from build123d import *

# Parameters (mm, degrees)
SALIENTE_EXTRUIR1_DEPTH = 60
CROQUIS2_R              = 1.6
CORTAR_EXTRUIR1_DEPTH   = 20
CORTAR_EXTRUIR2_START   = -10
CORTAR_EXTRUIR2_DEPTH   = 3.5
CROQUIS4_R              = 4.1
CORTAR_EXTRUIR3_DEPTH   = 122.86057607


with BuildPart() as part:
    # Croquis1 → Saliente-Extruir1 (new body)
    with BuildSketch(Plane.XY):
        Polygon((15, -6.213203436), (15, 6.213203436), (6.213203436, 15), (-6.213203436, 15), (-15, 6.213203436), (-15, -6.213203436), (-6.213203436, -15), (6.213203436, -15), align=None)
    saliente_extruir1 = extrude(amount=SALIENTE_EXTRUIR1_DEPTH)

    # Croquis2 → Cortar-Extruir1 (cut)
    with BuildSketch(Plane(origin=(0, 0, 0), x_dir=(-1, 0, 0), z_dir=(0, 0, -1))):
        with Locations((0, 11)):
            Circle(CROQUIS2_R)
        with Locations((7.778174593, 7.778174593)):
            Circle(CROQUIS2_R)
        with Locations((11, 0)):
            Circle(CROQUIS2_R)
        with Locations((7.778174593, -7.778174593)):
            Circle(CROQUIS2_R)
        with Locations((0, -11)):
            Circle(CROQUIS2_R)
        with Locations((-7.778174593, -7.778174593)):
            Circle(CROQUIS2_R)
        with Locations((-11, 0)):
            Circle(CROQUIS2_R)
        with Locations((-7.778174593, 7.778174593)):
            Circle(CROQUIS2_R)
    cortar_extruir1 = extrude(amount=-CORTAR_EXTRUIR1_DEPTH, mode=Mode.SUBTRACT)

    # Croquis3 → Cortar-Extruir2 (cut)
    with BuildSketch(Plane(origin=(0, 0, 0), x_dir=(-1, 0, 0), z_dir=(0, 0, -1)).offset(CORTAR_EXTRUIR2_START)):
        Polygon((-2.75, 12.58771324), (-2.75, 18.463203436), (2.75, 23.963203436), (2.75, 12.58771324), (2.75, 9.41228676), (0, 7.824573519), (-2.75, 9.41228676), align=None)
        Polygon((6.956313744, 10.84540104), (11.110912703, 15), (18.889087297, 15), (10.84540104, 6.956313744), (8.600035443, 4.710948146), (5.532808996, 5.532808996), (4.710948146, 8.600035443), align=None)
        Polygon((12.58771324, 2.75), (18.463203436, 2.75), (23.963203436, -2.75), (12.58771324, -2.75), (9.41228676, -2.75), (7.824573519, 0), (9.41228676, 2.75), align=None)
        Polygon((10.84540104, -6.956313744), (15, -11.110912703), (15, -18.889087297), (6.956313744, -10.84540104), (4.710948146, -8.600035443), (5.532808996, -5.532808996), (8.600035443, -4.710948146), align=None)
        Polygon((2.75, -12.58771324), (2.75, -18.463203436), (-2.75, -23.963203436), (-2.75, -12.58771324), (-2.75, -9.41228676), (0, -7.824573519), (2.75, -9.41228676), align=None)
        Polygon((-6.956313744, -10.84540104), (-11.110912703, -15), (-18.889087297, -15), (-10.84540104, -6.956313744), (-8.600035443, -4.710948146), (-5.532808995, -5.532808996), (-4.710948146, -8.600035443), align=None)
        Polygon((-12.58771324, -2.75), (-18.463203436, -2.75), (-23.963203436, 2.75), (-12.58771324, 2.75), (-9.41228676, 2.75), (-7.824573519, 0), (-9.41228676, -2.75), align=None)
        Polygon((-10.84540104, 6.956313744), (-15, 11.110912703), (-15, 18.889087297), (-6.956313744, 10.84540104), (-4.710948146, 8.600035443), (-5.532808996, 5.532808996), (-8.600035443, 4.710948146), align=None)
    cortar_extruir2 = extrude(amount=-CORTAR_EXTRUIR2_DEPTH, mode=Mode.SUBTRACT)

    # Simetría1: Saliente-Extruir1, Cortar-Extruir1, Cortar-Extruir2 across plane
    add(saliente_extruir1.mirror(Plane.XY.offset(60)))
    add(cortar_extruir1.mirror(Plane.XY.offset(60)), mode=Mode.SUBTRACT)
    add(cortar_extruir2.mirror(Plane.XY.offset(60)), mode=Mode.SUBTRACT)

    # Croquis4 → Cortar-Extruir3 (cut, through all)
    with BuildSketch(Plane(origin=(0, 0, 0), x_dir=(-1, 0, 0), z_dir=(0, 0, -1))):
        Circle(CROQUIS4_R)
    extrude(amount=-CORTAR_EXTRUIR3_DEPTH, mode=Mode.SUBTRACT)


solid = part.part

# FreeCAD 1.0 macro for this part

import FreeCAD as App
import Part
import Sketcher
Q = App.Units.Quantity

doc = App.newDocument("Part")
body = doc.addObject("PartDesign::Body", "Body")

# Sketch on XY plane
sketch1 = doc.addObject("Sketcher::SketchObject", "Sketch")
body.addObject(sketch1)
sketch1.AttachmentSupport = (doc.XY_Plane, [""])
sketch1.MapMode = "FlatFace"
sketch1.addGeometry(Part.LineSegment(App.Vector(15, -6, 0), App.Vector(15, 6, 0)), False)
sketch1.addGeometry(Part.LineSegment(App.Vector(15, 6, 0), App.Vector(6, 15, 0)), False)
sketch1.addGeometry(Part.LineSegment(App.Vector(6, 15, 0), App.Vector(-6, 15, 0)), False)
sketch1.addGeometry(Part.LineSegment(App.Vector(-6, 15, 0), App.Vector(-15, 6, 0)), False)
sketch1.addGeometry(Part.LineSegment(App.Vector(-15, 6, 0), App.Vector(-15, -6, 0)), False)
sketch1.addGeometry(Part.LineSegment(App.Vector(-15, -6, 0), App.Vector(-6, -15, 0)), False)
sketch1.addGeometry(Part.LineSegment(App.Vector(-6, -15, 0), App.Vector(6, -15, 0)), False)
sketch1.addGeometry(Part.LineSegment(App.Vector(6, -15, 0), App.Vector(15, -6, 0)), False)
sketch1.addConstraint(Sketcher.Constraint("Coincident", 0, 2, 1, 1))
sketch1.addConstraint(Sketcher.Constraint("Coincident", 1, 2, 2, 1))
sketch1.addConstraint(Sketcher.Constraint("Coincident", 2, 2, 3, 1))
sketch1.addConstraint(Sketcher.Constraint("Coincident", 3, 2, 4, 1))
sketch1.addConstraint(Sketcher.Constraint("Coincident", 4, 2, 5, 1))
sketch1.addConstraint(Sketcher.Constraint("Coincident", 5, 2, 6, 1))
sketch1.addConstraint(Sketcher.Constraint("Coincident", 6, 2, 7, 1))
sketch1.addConstraint(Sketcher.Constraint("Coincident", 7, 2, 0, 1))
sketch1.addConstraint(Sketcher.Constraint("Vertical", 0))
sketch1.addConstraint(Sketcher.Constraint("Horizontal", 2))
sketch1.addConstraint(Sketcher.Constraint("Vertical", 4))
sketch1.addConstraint(Sketcher.Constraint("Horizontal", 6))
sketch1.addConstraint(Sketcher.Constraint("Symmetric", 0, 2, 4, 2, -1, 1))
sketch1.addConstraint(Sketcher.Constraint("Symmetric", 1, 2, 5, 2, -1, 1))
sketch1.addConstraint(Sketcher.Constraint("Perpendicular", 1, 3))
sketch1.addConstraint(Sketcher.Constraint("Perpendicular", 5, 7))
sketch1.addConstraint(Sketcher.Constraint("Horizontal", 0, 2, 3, 2))
sketch1.addConstraint(Sketcher.Constraint("Horizontal", 4, 2, 7, 2))
sketch1.addConstraint(Sketcher.Constraint("Vertical", 2, 2, 5, 2))
sketch1.addConstraint(Sketcher.Constraint("Equal", 6, 0))
sketch1.addConstraint(Sketcher.Constraint("DistanceX", -1, 1, 0, 2, Q("15 mm")))
sketch1.addConstraint(Sketcher.Constraint("DistanceX", 2, 2, 2, 1, Q("12.426407 mm")))
pad1 = doc.addObject("PartDesign::Pad", "Pad")
body.addObject(pad1)
pad1.Profile = sketch1
pad1.Length = 60

# Sketch on XY plane
sketch2 = doc.addObject("Sketcher::SketchObject", "Sketch001")
body.addObject(sketch2)
sketch2.AttachmentSupport = (doc.XY_Plane, [""])
sketch2.MapMode = "FlatFace"
sketch2.addGeometry(Part.Circle(App.Vector(0, 11, 0), App.Vector(0, 0, 1), 1.6), False)
sketch2.addGeometry(Part.Circle(App.Vector(-7.8, 7.8, 0), App.Vector(0, 0, 1), 1.6), False)
sketch2.addGeometry(Part.Circle(App.Vector(-11, 0, 0), App.Vector(0, 0, 1), 1.6), False)
sketch2.addGeometry(Part.Circle(App.Vector(-7.8, -7.8, 0), App.Vector(0, 0, 1), 1.6), False)
sketch2.addGeometry(Part.Circle(App.Vector(0, -11, 0), App.Vector(0, 0, 1), 1.6), False)
sketch2.addGeometry(Part.Circle(App.Vector(7.8, -7.8, 0), App.Vector(0, 0, 1), 1.6), False)
sketch2.addGeometry(Part.Circle(App.Vector(11, 0, 0), App.Vector(0, 0, 1), 1.6), False)
sketch2.addGeometry(Part.Circle(App.Vector(7.8, 7.8, 0), App.Vector(0, 0, 1), 1.6), False)
sketch2.addConstraint(Sketcher.Constraint("Equal", 0, 1))
sketch2.addConstraint(Sketcher.Constraint("Equal", 1, 2))
sketch2.addConstraint(Sketcher.Constraint("Equal", 2, 3))
sketch2.addConstraint(Sketcher.Constraint("Equal", 3, 4))
sketch2.addConstraint(Sketcher.Constraint("Equal", 4, 5))
sketch2.addConstraint(Sketcher.Constraint("Equal", 5, 6))
sketch2.addConstraint(Sketcher.Constraint("Equal", 6, 7))
sketch2.addConstraint(Sketcher.Constraint("Symmetric", 0, 3, 4, 3, -1, 1))
sketch2.addConstraint(Sketcher.Constraint("Symmetric", 1, 3, 5, 3, -1, 1))
sketch2.addConstraint(Sketcher.Constraint("Symmetric", 2, 3, 6, 3, -1, 1))
sketch2.addConstraint(Sketcher.Constraint("Symmetric", 3, 3, 7, 3, -1, 1))
sketch2.addConstraint(Sketcher.Constraint("Symmetric", 3, 3, 5, 3, -2))
sketch2.addConstraint(Sketcher.Constraint("PointOnObject", 0, 3, -2))
sketch2.addConstraint(Sketcher.Constraint("PointOnObject", 2, 3, -1))
sketch2.addConstraint(Sketcher.Constraint("Diameter", 0, Q("3.2 mm")))
sketch2.addConstraint(Sketcher.Constraint("DistanceY", -1, 1, 0, 3, Q("11 mm")))
sketch2.addConstraint(Sketcher.Constraint("DistanceX", 2, 3, -1, 1, Q("11 mm")))
sketch2.addConstraint(Sketcher.Constraint("DistanceY", 3, 3, 1, 3, Q("15.556349 mm")))
sketch2.addConstraint(Sketcher.Constraint("DistanceX", 3, 3, 5, 3, Q("15.556349 mm")))
pocket1 = doc.addObject("PartDesign::Pocket", "Pocket")
body.addObject(pocket1)
pocket1.Profile = sketch2
pocket1.Length = 20
pocket1.Reversed = True

# Sketch on XY plane
sketch3 = doc.addObject("Sketcher::SketchObject", "Sketch002")
body.addObject(sketch3)
sketch3.AttachmentSupport = (doc.XY_Plane, [""])
sketch3.MapMode = "FlatFace"
sketch3.AttachmentOffset = App.Placement(App.Vector(0, 0, 10), App.Rotation())
sketch3.addGeometry(Part.LineSegment(App.Vector(2.8, 18.5, 0), App.Vector(2.8, 9.4, 0)), False)
sketch3.addGeometry(Part.LineSegment(App.Vector(2.8, 9.4, 0), App.Vector(0, 7.8, 0)), False)
sketch3.addGeometry(Part.LineSegment(App.Vector(0, 7.8, 0), App.Vector(-2.8, 9.4, 0)), False)
sketch3.addGeometry(Part.LineSegment(App.Vector(-2.8, 9.4, 0), App.Vector(-2.8, 24, 0)), False)
sketch3.addGeometry(Part.LineSegment(App.Vector(-2.8, 24, 0), App.Vector(2.8, 18.5, 0)), False)
sketch3.addGeometry(Part.LineSegment(App.Vector(-11.1, 15, 0), App.Vector(-7, 10.8, 0)), False)
sketch3.addGeometry(Part.LineSegment(App.Vector(-7, 10.8, 0), App.Vector(-4.7, 8.6, 0)), False)
sketch3.addGeometry(Part.LineSegment(App.Vector(-4.7, 8.6, 0), App.Vector(-5.5, 5.5, 0)), False)
sketch3.addGeometry(Part.LineSegment(App.Vector(-5.5, 5.5, 0), App.Vector(-8.6, 4.7, 0)), False)
sketch3.addGeometry(Part.LineSegment(App.Vector(-8.6, 4.7, 0), App.Vector(-10.8, 7, 0)), False)
sketch3.addGeometry(Part.LineSegment(App.Vector(-10.8, 7, 0), App.Vector(-18.9, 15, 0)), False)
sketch3.addGeometry(Part.LineSegment(App.Vector(-18.9, 15, 0), App.Vector(-11.1, 15, 0)), False)
sketch3.addGeometry(Part.LineSegment(App.Vector(-18.5, 2.8, 0), App.Vector(-9.4, 2.8, 0)), False)
sketch3.addGeometry(Part.LineSegment(App.Vector(-9.4, 2.8, 0), App.Vector(-7.8, 0, 0)), False)
sketch3.addGeometry(Part.LineSegment(App.Vector(-7.8, 0, 0), App.Vector(-9.4, -2.8, 0)), False)
sketch3.addGeometry(Part.LineSegment(App.Vector(-9.4, -2.8, 0), App.Vector(-24, -2.8, 0)), False)
sketch3.addGeometry(Part.LineSegment(App.Vector(-24, -2.8, 0), App.Vector(-18.5, 2.8, 0)), False)
sketch3.addGeometry(Part.LineSegment(App.Vector(-15, -11.1, 0), App.Vector(-10.8, -7, 0)), False)
sketch3.addGeometry(Part.LineSegment(App.Vector(-10.8, -7, 0), App.Vector(-8.6, -4.7, 0)), False)
sketch3.addGeometry(Part.LineSegment(App.Vector(-8.6, -4.7, 0), App.Vector(-5.5, -5.5, 0)), False)
sketch3.addGeometry(Part.LineSegment(App.Vector(-5.5, -5.5, 0), App.Vector(-4.7, -8.6, 0)), False)
sketch3.addGeometry(Part.LineSegment(App.Vector(-4.7, -8.6, 0), App.Vector(-7, -10.8, 0)), False)
sketch3.addGeometry(Part.LineSegment(App.Vector(-7, -10.8, 0), App.Vector(-15, -18.9, 0)), False)
sketch3.addGeometry(Part.LineSegment(App.Vector(-15, -18.9, 0), App.Vector(-15, -11.1, 0)), False)
sketch3.addGeometry(Part.LineSegment(App.Vector(-2.8, -18.5, 0), App.Vector(-2.8, -9.4, 0)), False)
sketch3.addGeometry(Part.LineSegment(App.Vector(-2.8, -9.4, 0), App.Vector(0, -7.8, 0)), False)
sketch3.addGeometry(Part.LineSegment(App.Vector(0, -7.8, 0), App.Vector(2.8, -9.4, 0)), False)
sketch3.addGeometry(Part.LineSegment(App.Vector(2.8, -9.4, 0), App.Vector(2.8, -24, 0)), False)
sketch3.addGeometry(Part.LineSegment(App.Vector(2.8, -24, 0), App.Vector(-2.8, -18.5, 0)), False)
sketch3.addGeometry(Part.LineSegment(App.Vector(11.1, -15, 0), App.Vector(7, -10.8, 0)), False)
sketch3.addGeometry(Part.LineSegment(App.Vector(7, -10.8, 0), App.Vector(4.7, -8.6, 0)), False)
sketch3.addGeometry(Part.LineSegment(App.Vector(4.7, -8.6, 0), App.Vector(5.5, -5.5, 0)), False)
sketch3.addGeometry(Part.LineSegment(App.Vector(5.5, -5.5, 0), App.Vector(8.6, -4.7, 0)), False)
sketch3.addGeometry(Part.LineSegment(App.Vector(8.6, -4.7, 0), App.Vector(10.8, -7, 0)), False)
sketch3.addGeometry(Part.LineSegment(App.Vector(10.8, -7, 0), App.Vector(18.9, -15, 0)), False)
sketch3.addGeometry(Part.LineSegment(App.Vector(18.9, -15, 0), App.Vector(11.1, -15, 0)), False)
sketch3.addGeometry(Part.LineSegment(App.Vector(18.5, -2.8, 0), App.Vector(9.4, -2.8, 0)), False)
sketch3.addGeometry(Part.LineSegment(App.Vector(9.4, -2.8, 0), App.Vector(7.8, 0, 0)), False)
sketch3.addGeometry(Part.LineSegment(App.Vector(7.8, 0, 0), App.Vector(9.4, 2.8, 0)), False)
sketch3.addGeometry(Part.LineSegment(App.Vector(9.4, 2.8, 0), App.Vector(24, 2.8, 0)), False)
sketch3.addGeometry(Part.LineSegment(App.Vector(24, 2.8, 0), App.Vector(18.5, -2.8, 0)), False)
sketch3.addGeometry(Part.LineSegment(App.Vector(15, 11.1, 0), App.Vector(10.8, 7, 0)), False)
sketch3.addGeometry(Part.LineSegment(App.Vector(10.8, 7, 0), App.Vector(8.6, 4.7, 0)), False)
sketch3.addGeometry(Part.LineSegment(App.Vector(8.6, 4.7, 0), App.Vector(5.5, 5.5, 0)), False)
sketch3.addGeometry(Part.LineSegment(App.Vector(5.5, 5.5, 0), App.Vector(4.7, 8.6, 0)), False)
sketch3.addGeometry(Part.LineSegment(App.Vector(4.7, 8.6, 0), App.Vector(7, 10.8, 0)), False)
sketch3.addGeometry(Part.LineSegment(App.Vector(7, 10.8, 0), App.Vector(15, 18.9, 0)), False)
sketch3.addGeometry(Part.LineSegment(App.Vector(15, 18.9, 0), App.Vector(15, 11.1, 0)), False)
sketch3.addConstraint(Sketcher.Constraint("Coincident", 0, 2, 1, 1))
sketch3.addConstraint(Sketcher.Constraint("Coincident", 1, 2, 2, 1))
sketch3.addConstraint(Sketcher.Constraint("Coincident", 2, 2, 3, 1))
sketch3.addConstraint(Sketcher.Constraint("Coincident", 3, 2, 4, 1))
sketch3.addConstraint(Sketcher.Constraint("Coincident", 4, 2, 0, 1))
sketch3.addConstraint(Sketcher.Constraint("Coincident", 5, 2, 6, 1))
sketch3.addConstraint(Sketcher.Constraint("Coincident", 6, 2, 7, 1))
sketch3.addConstraint(Sketcher.Constraint("Coincident", 7, 2, 8, 1))
sketch3.addConstraint(Sketcher.Constraint("Coincident", 8, 2, 9, 1))
sketch3.addConstraint(Sketcher.Constraint("Coincident", 9, 2, 10, 1))
sketch3.addConstraint(Sketcher.Constraint("Coincident", 10, 2, 11, 1))
sketch3.addConstraint(Sketcher.Constraint("Coincident", 11, 2, 5, 1))
sketch3.addConstraint(Sketcher.Constraint("Coincident", 12, 2, 13, 1))
sketch3.addConstraint(Sketcher.Constraint("Coincident", 13, 2, 14, 1))
sketch3.addConstraint(Sketcher.Constraint("Coincident", 14, 2, 15, 1))
sketch3.addConstraint(Sketcher.Constraint("Coincident", 15, 2, 16, 1))
sketch3.addConstraint(Sketcher.Constraint("Coincident", 16, 2, 12, 1))
sketch3.addConstraint(Sketcher.Constraint("Coincident", 17, 2, 18, 1))
sketch3.addConstraint(Sketcher.Constraint("Coincident", 18, 2, 19, 1))
sketch3.addConstraint(Sketcher.Constraint("Coincident", 19, 2, 20, 1))
sketch3.addConstraint(Sketcher.Constraint("Coincident", 20, 2, 21, 1))
sketch3.addConstraint(Sketcher.Constraint("Coincident", 21, 2, 22, 1))
sketch3.addConstraint(Sketcher.Constraint("Coincident", 22, 2, 23, 1))
sketch3.addConstraint(Sketcher.Constraint("Coincident", 23, 2, 17, 1))
sketch3.addConstraint(Sketcher.Constraint("Coincident", 24, 2, 25, 1))
sketch3.addConstraint(Sketcher.Constraint("Coincident", 25, 2, 26, 1))
sketch3.addConstraint(Sketcher.Constraint("Coincident", 26, 2, 27, 1))
sketch3.addConstraint(Sketcher.Constraint("Coincident", 27, 2, 28, 1))
sketch3.addConstraint(Sketcher.Constraint("Coincident", 28, 2, 24, 1))
sketch3.addConstraint(Sketcher.Constraint("Coincident", 29, 2, 30, 1))
sketch3.addConstraint(Sketcher.Constraint("Coincident", 30, 2, 31, 1))
sketch3.addConstraint(Sketcher.Constraint("Coincident", 31, 2, 32, 1))
sketch3.addConstraint(Sketcher.Constraint("Coincident", 32, 2, 33, 1))
sketch3.addConstraint(Sketcher.Constraint("Coincident", 33, 2, 34, 1))
sketch3.addConstraint(Sketcher.Constraint("Coincident", 34, 2, 35, 1))
sketch3.addConstraint(Sketcher.Constraint("Coincident", 35, 2, 29, 1))
sketch3.addConstraint(Sketcher.Constraint("Coincident", 36, 2, 37, 1))
sketch3.addConstraint(Sketcher.Constraint("Coincident", 37, 2, 38, 1))
sketch3.addConstraint(Sketcher.Constraint("Coincident", 38, 2, 39, 1))
sketch3.addConstraint(Sketcher.Constraint("Coincident", 39, 2, 40, 1))
sketch3.addConstraint(Sketcher.Constraint("Coincident", 40, 2, 36, 1))
sketch3.addConstraint(Sketcher.Constraint("Coincident", 41, 2, 42, 1))
sketch3.addConstraint(Sketcher.Constraint("Coincident", 42, 2, 43, 1))
sketch3.addConstraint(Sketcher.Constraint("Coincident", 43, 2, 44, 1))
sketch3.addConstraint(Sketcher.Constraint("Coincident", 44, 2, 45, 1))
sketch3.addConstraint(Sketcher.Constraint("Coincident", 45, 2, 46, 1))
sketch3.addConstraint(Sketcher.Constraint("Coincident", 46, 2, 47, 1))
sketch3.addConstraint(Sketcher.Constraint("Coincident", 47, 2, 41, 1))
sketch3.addConstraint(Sketcher.Constraint("Vertical", 0))
sketch3.addConstraint(Sketcher.Constraint("Vertical", 3))
sketch3.addConstraint(Sketcher.Constraint("Horizontal", 11))
sketch3.addConstraint(Sketcher.Constraint("Horizontal", 12))
sketch3.addConstraint(Sketcher.Constraint("Horizontal", 15))
sketch3.addConstraint(Sketcher.Constraint("Vertical", 23))
sketch3.addConstraint(Sketcher.Constraint("Vertical", 24))
sketch3.addConstraint(Sketcher.Constraint("Vertical", 27))
sketch3.addConstraint(Sketcher.Constraint("Horizontal", 35))
sketch3.addConstraint(Sketcher.Constraint("Horizontal", 36))
sketch3.addConstraint(Sketcher.Constraint("Horizontal", 39))
sketch3.addConstraint(Sketcher.Constraint("Vertical", 47))
sketch3.addConstraint(Sketcher.Constraint("Symmetric", 0, 2, 24, 2, -1, 1))
sketch3.addConstraint(Sketcher.Constraint("Symmetric", 1, 2, 25, 2, -1, 1))
sketch3.addConstraint(Sketcher.Constraint("Symmetric", 2, 2, 26, 2, -1, 1))
sketch3.addConstraint(Sketcher.Constraint("Symmetric", 5, 2, 29, 2, -1, 1))
sketch3.addConstraint(Sketcher.Constraint("Symmetric", 6, 2, 30, 2, -1, 1))
sketch3.addConstraint(Sketcher.Constraint("Symmetric", 7, 2, 31, 2, -1, 1))
sketch3.addConstraint(Sketcher.Constraint("Symmetric", 8, 2, 32, 2, -1, 1))
sketch3.addConstraint(Sketcher.Constraint("Symmetric", 9, 2, 33, 2, -1, 1))
sketch3.addConstraint(Sketcher.Constraint("Symmetric", 10, 2, 34, 2, -1, 1))
sketch3.addConstraint(Sketcher.Constraint("Symmetric", 12, 2, 36, 2, -1, 1))
sketch3.addConstraint(Sketcher.Constraint("Symmetric", 13, 2, 37, 2, -1, 1))
sketch3.addConstraint(Sketcher.Constraint("Symmetric", 14, 2, 38, 2, -1, 1))
sketch3.addConstraint(Sketcher.Constraint("Symmetric", 17, 2, 41, 2, -1, 1))
sketch3.addConstraint(Sketcher.Constraint("Symmetric", 18, 2, 42, 2, -1, 1))
sketch3.addConstraint(Sketcher.Constraint("Symmetric", 19, 2, 43, 2, -1, 1))
sketch3.addConstraint(Sketcher.Constraint("Symmetric", 20, 2, 44, 2, -1, 1))
sketch3.addConstraint(Sketcher.Constraint("Symmetric", 21, 2, 45, 2, -1, 1))
sketch3.addConstraint(Sketcher.Constraint("Symmetric", 22, 2, 46, 2, -1, 1))
sketch3.addConstraint(Sketcher.Constraint("Symmetric", 0, 2, 2, 2, -2))
sketch3.addConstraint(Sketcher.Constraint("Symmetric", 21, 2, 29, 2, -2))
sketch3.addConstraint(Sketcher.Constraint("Symmetric", 20, 2, 30, 2, -2))
sketch3.addConstraint(Sketcher.Constraint("Symmetric", 19, 2, 31, 2, -2))
sketch3.addConstraint(Sketcher.Constraint("Symmetric", 18, 2, 32, 2, -2))
sketch3.addConstraint(Sketcher.Constraint("Symmetric", 17, 2, 33, 2, -2))
sketch3.addConstraint(Sketcher.Constraint("Symmetric", 14, 2, 36, 2, -2))
sketch3.addConstraint(Sketcher.Constraint("PointOnObject", 1, 2, -2))
sketch3.addConstraint(Sketcher.Constraint("PointOnObject", 13, 2, -1))
sketch3.addConstraint(Sketcher.Constraint("Parallel", 4, 5))
sketch3.addConstraint(Sketcher.Constraint("Parallel", 5, 6))
sketch3.addConstraint(Sketcher.Constraint("Parallel", 6, 9))
sketch3.addConstraint(Sketcher.Constraint("Parallel", 9, 10))
sketch3.addConstraint(Sketcher.Constraint("Perpendicular", 1, 13))
sketch3.addConstraint(Sketcher.Constraint("Perpendicular", 10, 16))
sketch3.addConstraint(Sketcher.Constraint("Parallel", 16, 17))
sketch3.addConstraint(Sketcher.Constraint("Parallel", 17, 18))
sketch3.addConstraint(Sketcher.Constraint("Perpendicular", 7, 19))
sketch3.addConstraint(Sketcher.Constraint("Parallel", 21, 22))
sketch3.addConstraint(Sketcher.Constraint("Perpendicular", 22, 28))
sketch3.addConstraint(Sketcher.Constraint("Parallel", 28, 29))
sketch3.addConstraint(Sketcher.Constraint("Perpendicular", 34, 40))
sketch3.addConstraint(Sketcher.Constraint("Parallel", 40, 41))
sketch3.addConstraint(Sketcher.Constraint("Equal", 12, 36))
sketch3.addConstraint(Sketcher.Constraint("Equal", 36, 0))
sketch3.addConstraint(Sketcher.Constraint("Equal", 39, 3))
sketch3.addConstraint(Sketcher.Constraint("Equal", 0, 24))
sketch3.addConstraint(Sketcher.Constraint("Equal", 2, 6))
sketch3.addConstraint(Sketcher.Constraint("Equal", 6, 7))
sketch3.addConstraint(Sketcher.Constraint("Equal", 7, 8))
sketch3.addConstraint(Sketcher.Constraint("Equal", 8, 9))
sketch3.addConstraint(Sketcher.Constraint("Equal", 5, 17))
sketch3.addConstraint(Sketcher.Constraint("Angle", 1, Q("-150 deg")))
sketch3.addConstraint(Sketcher.Constraint("Angle", 7, Q("-105 deg")))
sketch3.addConstraint(Sketcher.Constraint("DistanceY", -1, 1, 10, 2, Q("15 mm")))
sketch3.addConstraint(Sketcher.Constraint("DistanceX", 22, 2, -1, 1, Q("15 mm")))
sketch3.addConstraint(Sketcher.Constraint("DistanceX", 2, 2, 0, 2, Q("5.5 mm")))
sketch3.addConstraint(Sketcher.Constraint("DistanceY", -1, 1, 5, 2, Q("10.845401 mm")))
sketch3.addConstraint(Sketcher.Constraint("DistanceY", 0, 2, 46, 2, Q("9.476801 mm")))
sketch3.addConstraint(Sketcher.Constraint("DistanceX", 12, 1, 12, 2, Q("9.050917 mm")))
sketch3.addConstraint(Sketcher.Constraint("DistanceX", 12, 2, 8, 2, Q("0.812251 mm")))
pocket2 = doc.addObject("PartDesign::Pocket", "Pocket001")
body.addObject(pocket2)
pocket2.Profile = sketch3
pocket2.Length = 3.5
pocket2.Reversed = True
doc.recompute()

datumplane = doc.addObject("PartDesign::Plane", "DatumPlane")
body.addObject(datumplane)
datumplane.AttachmentSupport = (doc.XY_Plane, [""])
datumplane.MapMode = "FlatFace"
datumplane.AttachmentOffset = App.Placement(App.Vector(0, 0, 60), App.Rotation())
mirrored = doc.addObject("PartDesign::Mirrored", "Mirrored")
body.addObject(mirrored)
mirrored.Originals = [pad1, pocket1, pocket2]
mirrored.MirrorPlane = (datumplane, [""])
body.Tip = mirrored

# Sketch on XY plane
sketch4 = doc.addObject("Sketcher::SketchObject", "Sketch003")
body.addObject(sketch4)
sketch4.AttachmentSupport = (doc.XY_Plane, [""])
sketch4.MapMode = "FlatFace"
sketch4.addGeometry(Part.Circle(App.Vector(0, 0, 0), App.Vector(0, 0, 1), 4.1), False)
sketch4.addConstraint(Sketcher.Constraint("Coincident", 0, 3, -1, 1))
sketch4.addConstraint(Sketcher.Constraint("Diameter", 0, Q("8.2 mm")))
pocket3 = doc.addObject("PartDesign::Pocket", "Pocket002")
body.addObject(pocket3)
pocket3.Profile = sketch4
pocket3.Type = "ThroughAll"
pocket3.Reversed = True

doc.recompute()
